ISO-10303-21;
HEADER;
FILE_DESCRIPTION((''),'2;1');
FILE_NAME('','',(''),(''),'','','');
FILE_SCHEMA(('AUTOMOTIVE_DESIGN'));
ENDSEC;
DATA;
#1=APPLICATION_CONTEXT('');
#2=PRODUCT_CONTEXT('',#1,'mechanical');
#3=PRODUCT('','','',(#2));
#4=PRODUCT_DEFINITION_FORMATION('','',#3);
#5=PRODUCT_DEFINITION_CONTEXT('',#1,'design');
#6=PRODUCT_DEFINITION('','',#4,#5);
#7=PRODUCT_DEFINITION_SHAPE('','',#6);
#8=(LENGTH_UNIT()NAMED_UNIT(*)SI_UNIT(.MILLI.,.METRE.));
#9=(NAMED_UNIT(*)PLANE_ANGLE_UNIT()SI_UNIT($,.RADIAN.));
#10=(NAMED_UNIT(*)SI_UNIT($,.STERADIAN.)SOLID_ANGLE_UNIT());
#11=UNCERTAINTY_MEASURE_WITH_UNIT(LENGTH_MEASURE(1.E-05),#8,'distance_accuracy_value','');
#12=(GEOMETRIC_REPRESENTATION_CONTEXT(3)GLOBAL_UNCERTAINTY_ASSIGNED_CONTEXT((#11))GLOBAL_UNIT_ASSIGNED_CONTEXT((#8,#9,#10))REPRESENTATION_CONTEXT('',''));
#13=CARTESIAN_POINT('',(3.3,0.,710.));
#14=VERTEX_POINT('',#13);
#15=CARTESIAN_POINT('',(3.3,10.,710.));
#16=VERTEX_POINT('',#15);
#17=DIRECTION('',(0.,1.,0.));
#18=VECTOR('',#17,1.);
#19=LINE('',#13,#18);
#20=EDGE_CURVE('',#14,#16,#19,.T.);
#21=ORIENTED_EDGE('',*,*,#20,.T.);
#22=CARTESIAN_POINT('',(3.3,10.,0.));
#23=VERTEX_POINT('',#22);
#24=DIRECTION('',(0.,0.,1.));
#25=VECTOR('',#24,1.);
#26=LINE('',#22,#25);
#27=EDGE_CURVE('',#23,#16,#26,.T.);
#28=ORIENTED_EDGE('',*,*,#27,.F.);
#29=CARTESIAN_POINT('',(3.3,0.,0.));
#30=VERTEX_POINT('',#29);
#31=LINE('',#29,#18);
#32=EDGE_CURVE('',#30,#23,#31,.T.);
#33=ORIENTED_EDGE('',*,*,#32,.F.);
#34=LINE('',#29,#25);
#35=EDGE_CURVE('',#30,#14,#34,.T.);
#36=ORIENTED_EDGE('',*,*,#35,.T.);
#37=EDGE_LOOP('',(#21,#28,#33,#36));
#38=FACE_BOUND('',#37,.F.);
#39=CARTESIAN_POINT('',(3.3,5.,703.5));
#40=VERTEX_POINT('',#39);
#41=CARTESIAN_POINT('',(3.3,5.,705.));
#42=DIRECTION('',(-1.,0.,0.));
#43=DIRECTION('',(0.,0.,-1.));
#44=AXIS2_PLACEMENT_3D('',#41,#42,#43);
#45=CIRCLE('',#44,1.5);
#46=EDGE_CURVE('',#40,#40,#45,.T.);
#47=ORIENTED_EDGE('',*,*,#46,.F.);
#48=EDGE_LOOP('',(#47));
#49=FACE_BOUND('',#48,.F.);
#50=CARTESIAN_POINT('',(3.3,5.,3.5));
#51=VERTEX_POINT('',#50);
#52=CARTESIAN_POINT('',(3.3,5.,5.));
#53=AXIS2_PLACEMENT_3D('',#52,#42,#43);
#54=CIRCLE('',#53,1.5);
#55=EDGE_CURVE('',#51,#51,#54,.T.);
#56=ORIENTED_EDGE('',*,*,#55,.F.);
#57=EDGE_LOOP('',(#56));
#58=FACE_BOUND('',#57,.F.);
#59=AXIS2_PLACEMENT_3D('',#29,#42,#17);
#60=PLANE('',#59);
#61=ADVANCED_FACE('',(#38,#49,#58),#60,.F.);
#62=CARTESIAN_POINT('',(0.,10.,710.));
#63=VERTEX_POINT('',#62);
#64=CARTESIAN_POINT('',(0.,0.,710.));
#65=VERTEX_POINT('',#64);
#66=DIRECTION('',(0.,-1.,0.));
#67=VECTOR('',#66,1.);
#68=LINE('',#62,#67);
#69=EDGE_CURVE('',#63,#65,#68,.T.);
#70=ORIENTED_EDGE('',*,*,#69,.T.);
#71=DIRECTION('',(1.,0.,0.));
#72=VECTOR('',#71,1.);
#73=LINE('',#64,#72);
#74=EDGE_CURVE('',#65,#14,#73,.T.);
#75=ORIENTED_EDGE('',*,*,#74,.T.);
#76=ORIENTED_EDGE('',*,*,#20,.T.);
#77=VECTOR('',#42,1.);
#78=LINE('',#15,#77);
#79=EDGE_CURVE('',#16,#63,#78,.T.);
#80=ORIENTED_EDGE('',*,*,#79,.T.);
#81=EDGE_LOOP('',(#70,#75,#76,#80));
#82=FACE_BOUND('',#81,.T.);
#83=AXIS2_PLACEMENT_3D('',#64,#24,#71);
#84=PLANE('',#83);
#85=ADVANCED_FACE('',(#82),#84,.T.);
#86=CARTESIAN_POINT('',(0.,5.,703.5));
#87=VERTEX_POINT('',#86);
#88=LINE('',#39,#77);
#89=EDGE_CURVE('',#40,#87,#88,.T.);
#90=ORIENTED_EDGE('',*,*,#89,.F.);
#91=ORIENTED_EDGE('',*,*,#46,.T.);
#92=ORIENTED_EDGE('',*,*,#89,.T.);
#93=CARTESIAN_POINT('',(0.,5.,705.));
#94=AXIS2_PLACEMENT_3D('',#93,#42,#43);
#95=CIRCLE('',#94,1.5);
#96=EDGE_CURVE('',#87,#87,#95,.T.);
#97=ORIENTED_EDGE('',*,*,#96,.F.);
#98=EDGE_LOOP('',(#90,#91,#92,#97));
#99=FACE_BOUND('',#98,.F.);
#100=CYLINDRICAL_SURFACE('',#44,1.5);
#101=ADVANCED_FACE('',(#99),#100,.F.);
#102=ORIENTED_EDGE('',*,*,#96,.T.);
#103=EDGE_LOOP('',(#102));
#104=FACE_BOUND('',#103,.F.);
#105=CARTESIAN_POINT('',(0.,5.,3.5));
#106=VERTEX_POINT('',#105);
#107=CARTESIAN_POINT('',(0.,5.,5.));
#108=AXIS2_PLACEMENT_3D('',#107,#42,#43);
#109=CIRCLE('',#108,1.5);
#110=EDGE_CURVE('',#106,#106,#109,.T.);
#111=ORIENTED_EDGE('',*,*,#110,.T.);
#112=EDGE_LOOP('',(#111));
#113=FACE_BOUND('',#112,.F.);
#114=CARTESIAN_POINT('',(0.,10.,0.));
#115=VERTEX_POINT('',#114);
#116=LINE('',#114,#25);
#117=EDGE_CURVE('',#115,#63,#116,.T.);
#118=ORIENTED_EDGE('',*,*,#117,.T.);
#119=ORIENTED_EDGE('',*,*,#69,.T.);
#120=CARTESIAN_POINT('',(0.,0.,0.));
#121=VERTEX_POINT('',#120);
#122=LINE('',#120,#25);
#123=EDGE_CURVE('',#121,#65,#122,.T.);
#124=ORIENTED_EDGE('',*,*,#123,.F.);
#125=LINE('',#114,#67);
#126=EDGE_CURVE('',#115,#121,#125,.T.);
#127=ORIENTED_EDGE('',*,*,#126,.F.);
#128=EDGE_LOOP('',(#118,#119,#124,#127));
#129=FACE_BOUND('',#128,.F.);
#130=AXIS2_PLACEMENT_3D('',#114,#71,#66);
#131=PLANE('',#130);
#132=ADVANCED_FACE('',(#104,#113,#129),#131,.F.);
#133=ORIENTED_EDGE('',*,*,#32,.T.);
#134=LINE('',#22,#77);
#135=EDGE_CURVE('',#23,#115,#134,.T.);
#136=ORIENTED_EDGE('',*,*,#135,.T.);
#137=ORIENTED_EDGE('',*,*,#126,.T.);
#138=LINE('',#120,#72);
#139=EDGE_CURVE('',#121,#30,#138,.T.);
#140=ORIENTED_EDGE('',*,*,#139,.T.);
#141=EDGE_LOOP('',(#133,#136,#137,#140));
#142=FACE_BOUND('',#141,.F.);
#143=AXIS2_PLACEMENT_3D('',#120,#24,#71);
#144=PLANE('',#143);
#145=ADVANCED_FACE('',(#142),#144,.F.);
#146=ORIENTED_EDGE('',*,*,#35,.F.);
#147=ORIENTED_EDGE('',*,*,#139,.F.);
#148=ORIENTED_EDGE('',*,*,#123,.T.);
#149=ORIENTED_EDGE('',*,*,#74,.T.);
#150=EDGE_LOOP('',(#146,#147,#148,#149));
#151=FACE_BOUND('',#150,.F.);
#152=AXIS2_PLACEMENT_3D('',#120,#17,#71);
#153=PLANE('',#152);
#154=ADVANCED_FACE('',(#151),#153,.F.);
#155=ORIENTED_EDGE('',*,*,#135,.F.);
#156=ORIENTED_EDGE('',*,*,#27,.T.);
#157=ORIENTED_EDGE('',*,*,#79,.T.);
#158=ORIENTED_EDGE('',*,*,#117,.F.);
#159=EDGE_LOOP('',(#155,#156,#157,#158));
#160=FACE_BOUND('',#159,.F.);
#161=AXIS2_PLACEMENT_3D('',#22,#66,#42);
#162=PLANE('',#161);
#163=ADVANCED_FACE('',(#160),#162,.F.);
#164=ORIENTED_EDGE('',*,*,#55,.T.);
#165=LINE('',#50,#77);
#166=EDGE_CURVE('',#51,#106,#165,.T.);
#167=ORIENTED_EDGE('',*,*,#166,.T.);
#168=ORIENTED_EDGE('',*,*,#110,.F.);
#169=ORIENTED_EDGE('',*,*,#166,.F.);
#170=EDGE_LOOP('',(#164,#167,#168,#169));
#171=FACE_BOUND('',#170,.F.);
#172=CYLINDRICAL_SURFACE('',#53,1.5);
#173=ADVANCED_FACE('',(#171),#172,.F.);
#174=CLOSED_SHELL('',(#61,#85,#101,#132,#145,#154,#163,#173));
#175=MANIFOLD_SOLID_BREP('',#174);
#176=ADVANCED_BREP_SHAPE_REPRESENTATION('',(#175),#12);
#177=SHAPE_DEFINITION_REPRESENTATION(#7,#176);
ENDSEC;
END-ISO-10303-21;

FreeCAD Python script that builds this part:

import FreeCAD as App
import Part
import Sketcher
from FreeCAD import Vector


def add_polygon(sketch, points):
    """Adds a closed chain of lines whose ends are joined by coincident constraints."""
    first, n = sketch.GeometryCount, len(points)
    for a, b in zip(points, points[1:] + points[:1]):
        sketch.addGeometry(Part.LineSegment(App.Vector(*a, 0), App.Vector(*b, 0)), False)
    for i in range(n):
        sketch.addConstraint(Sketcher.Constraint("Coincident", first + i, 2, first + (i + 1) % n, 1))

doc = App.newDocument("Part")
params = doc.addObject("Spreadsheet::Sheet", "Params")
for row, (alias, value) in enumerate([
    ("sketch1_height", "10 mm"),
    ("sketch1_width", "3.3 mm"),
    ("pad1_length", "710 mm"),
    ("sketch2_diameter", "3 mm"),
    ("hole_diameter", "3 mm"),
], start=1):
    params.set(f"A{row}", alias)
    params.set(f"B{row}", "=" + value)
    params.setAlias(f"B{row}", alias)

body = doc.addObject("PartDesign::Body", "Body")

# Sketch on XY plane
sketch1 = body.newObject("Sketcher::SketchObject", "Sketch")
sketch1.AttachmentSupport = (doc.getObject("XY_Plane"), [""])
sketch1.MapMode = "FlatFace"
add_polygon(sketch1, [(0, 10), (0, 0), (3.3, 0), (3.3, 10)])  # lines 0-3
sketch1.addConstraint(Sketcher.Constraint("Vertical", 0))
sketch1.addConstraint(Sketcher.Constraint("Horizontal", 1))
sketch1.addConstraint(Sketcher.Constraint("Vertical", 2))
sketch1.addConstraint(Sketcher.Constraint("Horizontal", 3))
sketch1.addConstraint(Sketcher.Constraint("Coincident", 0, 2, -1, 1))
sketch1.addConstraint(Sketcher.Constraint("DistanceY", 0, 2, 0, 1, 10.0))
sketch1.addConstraint(Sketcher.Constraint("DistanceX", 1, 1, 1, 2, 3.3))
sketch1.setExpression("Constraints[9]", "Params.sketch1_height")
sketch1.setExpression("Constraints[10]", "Params.sketch1_width")
pad1 = body.newObject("PartDesign::Pad", "Pad")
pad1.Profile = sketch1
pad1.setExpression("Length", "Params.pad1_length")

# Sketch on YZ plane
sketch2 = body.newObject("Sketcher::SketchObject", "Sketch001")
sketch2.AttachmentSupport = (doc.getObject("YZ_Plane"), [""])
sketch2.MapMode = "FlatFace"
sketch2.AttachmentOffset = App.Placement(Vector(0, 0, 3.3), App.Rotation())
sketch2.addGeometry(Part.Circle(Vector(5, 5, 0), Vector(0, 0, 1), 1.5), False)
sketch2.addGeometry(Part.Circle(Vector(5, 705, 0), Vector(0, 0, 1), 1.5), False)
sketch2.addConstraint(Sketcher.Constraint("Equal", 0, 1))
sketch2.addConstraint(Sketcher.Constraint("Vertical", 0, 3, 1, 3))
sketch2.addConstraint(Sketcher.Constraint("Diameter", 0, 3.0))
sketch2.addConstraint(Sketcher.Constraint("DistanceX", -1, 1, 0, 3, 5.0))
sketch2.addConstraint(Sketcher.Constraint("DistanceY", -1, 1, 0, 3, 5.0))
sketch2.addConstraint(Sketcher.Constraint("DistanceY", -1, 1, 1, 3, 705.0))
sketch2.setExpression("Constraints[2]", "Params.sketch2_diameter")
doc.recompute()
hole = body.newObject("PartDesign::Hole", "Hole")
hole.Profile = sketch2
hole.ThreadType = "None"
hole.setExpression("Diameter", "Params.hole_diameter")
hole.DepthType = "ThroughAll"

doc.recompute()
